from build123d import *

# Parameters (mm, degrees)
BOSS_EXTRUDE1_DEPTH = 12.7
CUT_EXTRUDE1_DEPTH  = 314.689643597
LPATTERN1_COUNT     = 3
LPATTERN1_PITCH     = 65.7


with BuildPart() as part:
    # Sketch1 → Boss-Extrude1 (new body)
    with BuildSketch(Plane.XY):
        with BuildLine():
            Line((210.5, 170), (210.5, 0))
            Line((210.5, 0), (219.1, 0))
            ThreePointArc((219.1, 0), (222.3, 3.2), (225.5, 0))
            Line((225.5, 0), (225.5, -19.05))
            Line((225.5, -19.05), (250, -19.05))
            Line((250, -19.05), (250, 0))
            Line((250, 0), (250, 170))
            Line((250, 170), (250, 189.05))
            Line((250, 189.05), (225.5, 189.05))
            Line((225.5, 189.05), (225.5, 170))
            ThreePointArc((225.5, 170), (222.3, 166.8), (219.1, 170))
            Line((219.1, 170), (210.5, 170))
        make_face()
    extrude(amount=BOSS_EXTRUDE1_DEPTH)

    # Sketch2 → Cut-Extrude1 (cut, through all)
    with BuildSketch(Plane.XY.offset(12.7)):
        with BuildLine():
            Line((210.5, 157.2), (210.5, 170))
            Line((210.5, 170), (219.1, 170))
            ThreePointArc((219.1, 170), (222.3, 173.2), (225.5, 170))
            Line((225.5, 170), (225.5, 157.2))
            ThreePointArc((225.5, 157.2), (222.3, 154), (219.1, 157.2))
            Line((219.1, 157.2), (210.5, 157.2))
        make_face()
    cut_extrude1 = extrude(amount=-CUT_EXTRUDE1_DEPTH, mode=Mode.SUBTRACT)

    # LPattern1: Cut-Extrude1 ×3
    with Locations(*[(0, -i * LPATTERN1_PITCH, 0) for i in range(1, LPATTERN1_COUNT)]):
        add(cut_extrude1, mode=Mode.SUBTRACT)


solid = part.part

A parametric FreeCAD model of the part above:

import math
import FreeCAD as App
import Part
import Sketcher
from FreeCAD import Vector
Q = App.Units.Quantity

doc = App.newDocument("Part")
body = doc.addObject("PartDesign::Body", "Body")

# Sketch on XY plane
sketch1 = body.newObject("Sketcher::SketchObject", "Sketch")
sketch1.AttachmentSupport = (doc.getObject("XY_Plane"), [""])
sketch1.MapMode = "FlatFace"
sketch1.addGeometry([
    Part.LineSegment(Vector(210.5, 170, 0), Vector(210.5, 0, 0)),  # 0
    Part.LineSegment(Vector(210.5, 0, 0), Vector(219.1, 0, 0)),  # 1
    Part.ArcOfCircle(Part.Circle(Vector(222.3, 0, 0), Vector(0, 0, 1), 3.2), math.radians(0), math.radians(180)),  # 2
    Part.LineSegment(Vector(225.5, 0, 0), Vector(225.5, -19.05, 0)),  # 3
    Part.LineSegment(Vector(225.5, -19.05, 0), Vector(250, -19.05, 0)),  # 4
    Part.LineSegment(Vector(250, -19.05, 0), Vector(250, 189.05, 0)),  # 5
    Part.LineSegment(Vector(250, 189.05, 0), Vector(225.5, 189.05, 0)),  # 6
    Part.LineSegment(Vector(225.5, 189.05, 0), Vector(225.5, 170, 0)),  # 7
    Part.ArcOfCircle(Part.Circle(Vector(222.3, 170, 0), Vector(0, 0, 1), 3.2), math.radians(180), math.radians(360)),  # 8
    Part.LineSegment(Vector(219.1, 170, 0), Vector(210.5, 170, 0)),  # 9
], False)
sketch1.addConstraint([
    Sketcher.Constraint("Coincident", 0, 2, 1, 1),
    Sketcher.Constraint("Coincident", 1, 2, 2, 2),
    Sketcher.Constraint("Tangent", 2, 1, 3, 1),
    Sketcher.Constraint("Coincident", 3, 2, 4, 1),
    Sketcher.Constraint("Coincident", 4, 2, 5, 1),
    Sketcher.Constraint("Coincident", 5, 2, 6, 1),
    Sketcher.Constraint("Coincident", 6, 2, 7, 1),
    Sketcher.Constraint("Tangent", 7, 2, 8, 2),
    Sketcher.Constraint("Coincident", 8, 1, 9, 1),
    Sketcher.Constraint("Coincident", 9, 2, 0, 1),
    Sketcher.Constraint("Vertical", 0),
    Sketcher.Constraint("Horizontal", 1),
    Sketcher.Constraint("Vertical", 3),
    Sketcher.Constraint("Horizontal", 4),
    Sketcher.Constraint("Vertical", 5),
    Sketcher.Constraint("Horizontal", 6),
    Sketcher.Constraint("Vertical", 7),
    Sketcher.Constraint("Horizontal", 9),
    Sketcher.Constraint("Equal", 2, 8),
    Sketcher.Constraint("PointOnObject", 2, 3, -1),
    Sketcher.Constraint("PointOnObject", 0, 2, -1),
    Sketcher.Constraint("Horizontal", 7, 2, 8, 1),
    Sketcher.Constraint("Vertical", 2, 3, 8, 3),
    Sketcher.Constraint("Equal", 3, 7),
    Sketcher.Constraint("Radius", 2, Q("3.2 mm")),
    Sketcher.Constraint("DistanceY", 0, 2, 0, 1, Q("170 mm")),
    Sketcher.Constraint("DistanceX", 1, 1, 1, 2, Q("8.6 mm")),
    Sketcher.Constraint("DistanceX", 4, 1, 4, 2, Q("24.5 mm")),
    Sketcher.Constraint("DistanceY", 5, 1, 5, 2, Q("208.1 mm")),
    Sketcher.Constraint("DistanceX", -1, 1, 4, 2, Q("250 mm")),
])
pad1 = body.newObject("PartDesign::Pad", "Pad")
pad1.Profile = sketch1
pad1.Length = 12.7

# Sketch on XY plane
sketch2 = body.newObject("Sketcher::SketchObject", "Sketch001")
sketch2.AttachmentSupport = (doc.getObject("XY_Plane"), [""])
sketch2.MapMode = "FlatFace"
sketch2.AttachmentOffset = App.Placement(Vector(0, 0, 12.7), App.Rotation())
sketch2.addGeometry([
    Part.LineSegment(Vector(210.5, 170, 0), Vector(210.5, 157.2, 0)),  # 0
    Part.LineSegment(Vector(210.5, 157.2, 0), Vector(219.1, 157.2, 0)),  # 1
    Part.ArcOfCircle(Part.Circle(Vector(222.3, 157.2, 0), Vector(0, 0, 1), 3.2), math.radians(180), math.radians(360)),  # 2
    Part.LineSegment(Vector(225.5, 157.2, 0), Vector(225.5, 170, 0)),  # 3
    Part.ArcOfCircle(Part.Circle(Vector(222.3, 170, 0), Vector(0, 0, 1), 3.2), math.radians(0), math.radians(180)),  # 4
    Part.LineSegment(Vector(219.1, 170, 0), Vector(210.5, 170, 0)),  # 5
], False)
sketch2.addConstraint([
    Sketcher.Constraint("Coincident", 0, 2, 1, 1),
    Sketcher.Constraint("Coincident", 1, 2, 2, 1),
    Sketcher.Constraint("Tangent", 2, 2, 3, 1),
    Sketcher.Constraint("Tangent", 3, 2, 4, 1),
    Sketcher.Constraint("Coincident", 4, 2, 5, 1),
    Sketcher.Constraint("Coincident", 5, 2, 0, 1),
    Sketcher.Constraint("Vertical", 0),
    Sketcher.Constraint("Horizontal", 1),
    Sketcher.Constraint("Vertical", 3),
    Sketcher.Constraint("Horizontal", 5),
    Sketcher.Constraint("Equal", 2, 4),
    Sketcher.Constraint("Horizontal", 2, 3, 0, 2),
    Sketcher.Constraint("Horizontal", 3, 2, 4, 2),
    Sketcher.Constraint("Radius", 2, Q("3.2 mm")),
    Sketcher.Constraint("DistanceX", 1, 1, 1, 2, Q("8.6 mm")),
    Sketcher.Constraint("DistanceY", 0, 2, 0, 1, Q("12.8 mm")),
    Sketcher.Constraint("DistanceY", -1, 1, 4, 3, Q("170 mm")),
    Sketcher.Constraint("DistanceX", -1, 1, 2, 3, Q("222.3 mm")),
])
pocket1 = body.newObject("PartDesign::Pocket", "Pocket")
pocket1.Profile = sketch2
pocket1.Type = "ThroughAll"
doc.recompute()

linearpattern = body.newObject("PartDesign::LinearPattern", "LinearPattern")
linearpattern.Originals = [pocket1]
linearpattern.Direction = (doc.getObject("Y_Axis"), [""])
linearpattern.Mode = "offset"
linearpattern.Offset = 65.7
linearpattern.Occurrences = 3
linearpattern.Reversed = True
body.Tip = linearpattern

doc.recompute()
